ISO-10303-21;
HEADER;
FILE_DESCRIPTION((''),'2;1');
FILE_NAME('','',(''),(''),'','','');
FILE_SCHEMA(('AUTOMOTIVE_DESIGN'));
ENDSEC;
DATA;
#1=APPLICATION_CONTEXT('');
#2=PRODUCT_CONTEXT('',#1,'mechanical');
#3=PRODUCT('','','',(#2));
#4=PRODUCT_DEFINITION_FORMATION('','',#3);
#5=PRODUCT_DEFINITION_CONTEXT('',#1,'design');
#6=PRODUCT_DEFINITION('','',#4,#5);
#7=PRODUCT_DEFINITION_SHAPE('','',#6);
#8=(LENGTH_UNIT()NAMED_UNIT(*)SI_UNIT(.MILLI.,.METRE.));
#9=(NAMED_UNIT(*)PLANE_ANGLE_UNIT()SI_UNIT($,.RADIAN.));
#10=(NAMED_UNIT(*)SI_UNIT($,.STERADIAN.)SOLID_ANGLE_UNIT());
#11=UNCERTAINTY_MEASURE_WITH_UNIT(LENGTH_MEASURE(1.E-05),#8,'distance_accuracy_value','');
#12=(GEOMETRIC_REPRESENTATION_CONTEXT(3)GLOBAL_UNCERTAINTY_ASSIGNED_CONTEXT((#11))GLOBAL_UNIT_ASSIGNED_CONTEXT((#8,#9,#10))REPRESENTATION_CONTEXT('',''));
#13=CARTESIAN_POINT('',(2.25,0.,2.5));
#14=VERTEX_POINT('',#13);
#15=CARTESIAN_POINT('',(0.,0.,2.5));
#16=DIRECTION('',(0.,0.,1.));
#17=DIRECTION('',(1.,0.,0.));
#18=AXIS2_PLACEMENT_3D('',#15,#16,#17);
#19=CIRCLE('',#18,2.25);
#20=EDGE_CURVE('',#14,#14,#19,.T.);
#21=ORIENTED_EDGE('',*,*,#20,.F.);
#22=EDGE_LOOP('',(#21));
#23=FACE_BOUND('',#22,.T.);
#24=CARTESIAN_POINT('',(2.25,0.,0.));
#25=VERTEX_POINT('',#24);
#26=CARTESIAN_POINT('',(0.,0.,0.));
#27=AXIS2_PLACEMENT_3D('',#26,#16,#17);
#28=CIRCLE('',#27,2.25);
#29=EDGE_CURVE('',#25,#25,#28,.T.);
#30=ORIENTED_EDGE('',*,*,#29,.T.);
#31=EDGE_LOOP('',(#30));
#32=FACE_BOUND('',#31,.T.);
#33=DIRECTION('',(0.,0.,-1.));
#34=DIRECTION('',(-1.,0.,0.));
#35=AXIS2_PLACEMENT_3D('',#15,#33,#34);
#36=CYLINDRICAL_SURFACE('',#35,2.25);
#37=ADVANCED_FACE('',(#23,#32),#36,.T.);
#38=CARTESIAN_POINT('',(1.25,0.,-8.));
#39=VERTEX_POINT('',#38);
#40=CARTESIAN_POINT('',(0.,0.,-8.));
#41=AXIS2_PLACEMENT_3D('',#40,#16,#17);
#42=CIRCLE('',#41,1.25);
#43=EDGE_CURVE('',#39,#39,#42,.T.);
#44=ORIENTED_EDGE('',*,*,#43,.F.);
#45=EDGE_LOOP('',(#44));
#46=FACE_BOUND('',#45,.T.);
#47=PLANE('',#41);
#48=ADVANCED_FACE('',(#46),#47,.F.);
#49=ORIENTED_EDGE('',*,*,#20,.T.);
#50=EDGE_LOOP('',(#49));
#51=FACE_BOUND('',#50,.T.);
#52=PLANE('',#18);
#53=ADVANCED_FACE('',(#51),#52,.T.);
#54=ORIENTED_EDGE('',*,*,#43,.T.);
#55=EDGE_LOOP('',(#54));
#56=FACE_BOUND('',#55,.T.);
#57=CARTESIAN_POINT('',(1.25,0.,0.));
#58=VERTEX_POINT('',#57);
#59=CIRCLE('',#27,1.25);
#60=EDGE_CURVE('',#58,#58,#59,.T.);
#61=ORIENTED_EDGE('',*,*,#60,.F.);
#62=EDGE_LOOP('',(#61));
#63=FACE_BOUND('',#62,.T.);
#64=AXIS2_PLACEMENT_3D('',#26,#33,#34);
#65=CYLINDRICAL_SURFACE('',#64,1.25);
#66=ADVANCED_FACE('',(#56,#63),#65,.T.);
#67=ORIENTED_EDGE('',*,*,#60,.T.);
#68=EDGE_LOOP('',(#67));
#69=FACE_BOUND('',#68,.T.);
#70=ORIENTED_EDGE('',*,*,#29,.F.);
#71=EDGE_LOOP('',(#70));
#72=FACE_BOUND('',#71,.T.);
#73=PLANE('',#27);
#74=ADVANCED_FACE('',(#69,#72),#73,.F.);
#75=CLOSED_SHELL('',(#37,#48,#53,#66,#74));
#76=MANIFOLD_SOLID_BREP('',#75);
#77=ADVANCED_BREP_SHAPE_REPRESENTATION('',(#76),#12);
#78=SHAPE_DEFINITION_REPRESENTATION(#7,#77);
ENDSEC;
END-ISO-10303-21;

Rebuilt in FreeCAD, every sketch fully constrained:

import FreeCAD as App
import Part
import Sketcher

V = App.Vector

doc = App.newDocument("Part")
body = doc.addObject("PartDesign::Body", "Body")

sketch1 = body.newObject("Sketcher::SketchObject", "Sketch")
sketch1.AttachmentSupport = (doc.getObject("XY_Plane"), [""])
sketch1.MapMode = "FlatFace"
sketch1.AttachmentOffset = App.Placement(V(0, 0, -8), App.Rotation())
sketch1.addGeometry(Part.Circle(V(0, 0, 0), V(0, 0, 1), 1.2), False)
sketch1.addConstraint([
    Sketcher.Constraint("Coincident", 0, 3, -1, 1),
    Sketcher.Constraint("Diameter", 0, 2.5),
])
pad1 = body.newObject("PartDesign::Pad", "Pad")
pad1.Profile = sketch1
pad1.Length = 8

sketch2 = body.newObject("Sketcher::SketchObject", "Sketch001")
sketch2.AttachmentSupport = (doc.getObject("XY_Plane"), [""])
sketch2.MapMode = "FlatFace"
sketch2.addGeometry(Part.Circle(V(0, 0, 0), V(0, 0, 1), 2.2), False)
sketch2.addConstraint([
    Sketcher.Constraint("Coincident", 0, 3, -1, 1),
    Sketcher.Constraint("Diameter", 0, 4.5),
])
pad2 = body.newObject("PartDesign::Pad", "Pad001")
pad2.Profile = sketch2
pad2.Length = 2.5

doc.recompute()
